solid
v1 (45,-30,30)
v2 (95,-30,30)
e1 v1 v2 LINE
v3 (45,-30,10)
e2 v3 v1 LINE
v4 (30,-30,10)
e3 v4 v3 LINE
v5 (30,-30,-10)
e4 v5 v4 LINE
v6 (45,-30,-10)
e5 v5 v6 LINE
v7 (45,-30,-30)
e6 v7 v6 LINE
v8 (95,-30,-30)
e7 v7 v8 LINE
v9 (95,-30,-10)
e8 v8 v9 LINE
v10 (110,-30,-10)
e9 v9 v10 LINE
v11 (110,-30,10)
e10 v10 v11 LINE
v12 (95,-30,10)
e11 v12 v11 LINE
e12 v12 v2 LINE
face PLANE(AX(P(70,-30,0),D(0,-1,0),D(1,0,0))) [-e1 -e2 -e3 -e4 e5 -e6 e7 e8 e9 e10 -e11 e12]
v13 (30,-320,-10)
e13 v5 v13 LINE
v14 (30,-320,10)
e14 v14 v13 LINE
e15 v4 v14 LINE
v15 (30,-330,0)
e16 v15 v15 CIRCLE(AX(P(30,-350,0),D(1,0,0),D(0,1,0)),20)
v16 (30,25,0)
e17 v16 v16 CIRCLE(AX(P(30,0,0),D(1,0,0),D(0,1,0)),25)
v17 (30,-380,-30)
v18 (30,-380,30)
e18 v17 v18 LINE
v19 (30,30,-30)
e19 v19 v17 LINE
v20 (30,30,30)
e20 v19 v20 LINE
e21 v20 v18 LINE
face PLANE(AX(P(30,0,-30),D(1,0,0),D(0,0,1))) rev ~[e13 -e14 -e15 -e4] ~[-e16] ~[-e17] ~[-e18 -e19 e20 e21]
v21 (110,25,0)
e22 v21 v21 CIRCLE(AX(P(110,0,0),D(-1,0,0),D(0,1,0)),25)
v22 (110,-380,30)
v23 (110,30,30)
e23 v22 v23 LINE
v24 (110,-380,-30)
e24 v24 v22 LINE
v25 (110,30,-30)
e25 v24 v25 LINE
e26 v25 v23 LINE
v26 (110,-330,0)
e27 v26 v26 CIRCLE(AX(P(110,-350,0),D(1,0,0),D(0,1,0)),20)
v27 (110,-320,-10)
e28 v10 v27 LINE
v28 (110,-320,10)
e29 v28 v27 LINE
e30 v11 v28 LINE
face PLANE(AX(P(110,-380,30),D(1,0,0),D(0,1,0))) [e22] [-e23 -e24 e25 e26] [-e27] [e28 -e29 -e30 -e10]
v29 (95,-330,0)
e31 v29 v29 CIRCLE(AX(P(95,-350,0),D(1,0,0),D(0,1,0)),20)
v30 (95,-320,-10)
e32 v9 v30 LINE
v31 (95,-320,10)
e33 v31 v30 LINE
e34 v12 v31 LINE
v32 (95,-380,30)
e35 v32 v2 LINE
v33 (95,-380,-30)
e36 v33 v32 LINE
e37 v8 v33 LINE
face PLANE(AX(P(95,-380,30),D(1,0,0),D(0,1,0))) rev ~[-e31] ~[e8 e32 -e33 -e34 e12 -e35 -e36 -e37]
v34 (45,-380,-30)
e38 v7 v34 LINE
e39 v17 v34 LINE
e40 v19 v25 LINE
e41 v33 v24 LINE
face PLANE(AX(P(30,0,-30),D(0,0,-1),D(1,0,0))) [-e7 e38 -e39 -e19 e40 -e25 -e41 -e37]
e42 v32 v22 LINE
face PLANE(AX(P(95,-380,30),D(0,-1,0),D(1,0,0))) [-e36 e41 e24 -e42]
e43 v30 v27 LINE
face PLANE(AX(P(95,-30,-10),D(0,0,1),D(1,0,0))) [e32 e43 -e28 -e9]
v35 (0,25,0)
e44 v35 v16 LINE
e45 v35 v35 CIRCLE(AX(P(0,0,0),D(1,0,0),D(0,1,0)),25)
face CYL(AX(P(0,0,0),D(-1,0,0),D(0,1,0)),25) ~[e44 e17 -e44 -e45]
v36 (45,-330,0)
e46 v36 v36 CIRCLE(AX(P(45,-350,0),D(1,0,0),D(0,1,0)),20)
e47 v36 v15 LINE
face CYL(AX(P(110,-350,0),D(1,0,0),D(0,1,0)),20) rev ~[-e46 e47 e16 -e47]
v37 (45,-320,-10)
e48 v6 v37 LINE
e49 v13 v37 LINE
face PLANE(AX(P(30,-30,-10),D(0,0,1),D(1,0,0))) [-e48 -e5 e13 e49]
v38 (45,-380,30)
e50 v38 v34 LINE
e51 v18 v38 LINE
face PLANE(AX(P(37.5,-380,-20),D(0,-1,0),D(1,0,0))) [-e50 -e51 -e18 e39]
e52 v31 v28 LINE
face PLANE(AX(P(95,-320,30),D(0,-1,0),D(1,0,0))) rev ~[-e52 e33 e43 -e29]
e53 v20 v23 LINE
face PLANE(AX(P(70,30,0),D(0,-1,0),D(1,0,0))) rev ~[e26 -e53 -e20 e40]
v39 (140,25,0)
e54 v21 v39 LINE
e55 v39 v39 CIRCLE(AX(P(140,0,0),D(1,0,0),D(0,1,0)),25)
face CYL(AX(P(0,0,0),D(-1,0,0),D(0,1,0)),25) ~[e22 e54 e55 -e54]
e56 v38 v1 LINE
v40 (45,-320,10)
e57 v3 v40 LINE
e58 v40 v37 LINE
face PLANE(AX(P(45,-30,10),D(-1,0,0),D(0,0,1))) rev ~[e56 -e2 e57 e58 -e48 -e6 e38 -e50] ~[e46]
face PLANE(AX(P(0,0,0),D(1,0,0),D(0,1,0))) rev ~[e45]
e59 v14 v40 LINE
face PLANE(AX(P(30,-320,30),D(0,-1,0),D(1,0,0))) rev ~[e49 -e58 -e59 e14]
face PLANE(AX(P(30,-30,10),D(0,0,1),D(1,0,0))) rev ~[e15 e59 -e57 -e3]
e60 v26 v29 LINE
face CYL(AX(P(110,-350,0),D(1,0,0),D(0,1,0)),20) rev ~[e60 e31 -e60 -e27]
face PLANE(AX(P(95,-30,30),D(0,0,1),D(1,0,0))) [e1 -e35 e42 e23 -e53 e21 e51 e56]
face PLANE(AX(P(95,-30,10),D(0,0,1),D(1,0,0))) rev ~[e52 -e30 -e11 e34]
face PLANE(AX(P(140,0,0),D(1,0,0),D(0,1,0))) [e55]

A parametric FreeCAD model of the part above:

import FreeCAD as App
import Part
import Sketcher
Q = App.Units.Quantity


def add_polygon(sketch, points):
    """Adds a closed chain of lines whose ends are joined by coincident constraints."""
    first, n = sketch.GeometryCount, len(points)
    for a, b in zip(points, points[1:] + points[:1]):
        sketch.addGeometry(Part.LineSegment(App.Vector(*a, 0), App.Vector(*b, 0)), False)
    for i in range(n):
        sketch.addConstraint(Sketcher.Constraint("Coincident", first + i, 2, first + (i + 1) % n, 1))

doc = App.newDocument("Part")
body = doc.addObject("PartDesign::Body", "Body")

sketch1 = body.newObject("Sketcher::SketchObject", "Sketch")
sketch1.AttachmentSupport = (doc.getObject("YZ_Plane"), [""])
sketch1.MapMode = "FlatFace"
sketch1.addGeometry(Part.Circle(App.Vector(0, 0, 0), App.Vector(0, 0, 1), 25), False)
sketch1.addConstraint(Sketcher.Constraint("Coincident", 0, 3, -1, 1))
sketch1.addConstraint(Sketcher.Constraint("Diameter", 0, Q("50 mm")))
pad1 = body.newObject("PartDesign::Pad", "Pad")
pad1.Profile = sketch1
pad1.Length = 140

sketch2 = body.newObject("Sketcher::SketchObject", "Sketch001")
sketch2.AttachmentSupport = (doc.getObject("XZ_Plane"), [""])
sketch2.MapMode = "FlatFace"
add_polygon(sketch2, [(30, 30), (30, -30), (110, -30), (110, 30)])
sketch2.addConstraint(Sketcher.Constraint("Vertical", 0))
sketch2.addConstraint(Sketcher.Constraint("Horizontal", 1))
sketch2.addConstraint(Sketcher.Constraint("Vertical", 2))
sketch2.addConstraint(Sketcher.Constraint("Horizontal", 3))
sketch2.addConstraint(Sketcher.Constraint("DistanceX", 1, 1, 1, 2, Q("80 mm")))
sketch2.addConstraint(Sketcher.Constraint("DistanceY", 0, 2, 0, 1, Q("60 mm")))
sketch2.addConstraint(Sketcher.Constraint("DistanceX", -1, 1, 0, 2, Q("30 mm")))
sketch2.addConstraint(Sketcher.Constraint("DistanceY", 0, 2, -1, 1, Q("30 mm")))
pad2 = body.newObject("PartDesign::Pad", "Pad001")
pad2.Profile = sketch2
pad2.Type = "TwoLengths"
pad2.Length = 30
pad2.Length2 = 30

sketch3 = body.newObject("Sketcher::SketchObject", "Sketch002")
sketch3.AttachmentSupport = (doc.getObject("XZ_Plane"), [""])
sketch3.MapMode = "FlatFace"
sketch3.AttachmentOffset = App.Placement(App.Vector(0, 0, 30), App.Rotation())
add_polygon(sketch3, [(95, 30), (95, 10), (110, 10), (110, 30)])
add_polygon(sketch3, [(30, 30), (30, 10), (45, 10), (45, 30)])
add_polygon(sketch3, [(30, -10), (30, -30), (45, -30), (45, -10)])
add_polygon(sketch3, [(95, -10), (95, -30), (110, -30), (110, -10)])
sketch3.addConstraint(Sketcher.Constraint("Vertical", 0))
sketch3.addConstraint(Sketcher.Constraint("Horizontal", 1))
sketch3.addConstraint(Sketcher.Constraint("Vertical", 2))
sketch3.addConstraint(Sketcher.Constraint("Horizontal", 3))
sketch3.addConstraint(Sketcher.Constraint("Vertical", 4))
sketch3.addConstraint(Sketcher.Constraint("Horizontal", 5))
sketch3.addConstraint(Sketcher.Constraint("Vertical", 6))
sketch3.addConstraint(Sketcher.Constraint("Horizontal", 7))
sketch3.addConstraint(Sketcher.Constraint("Vertical", 8))
sketch3.addConstraint(Sketcher.Constraint("Horizontal", 9))
sketch3.addConstraint(Sketcher.Constraint("Vertical", 10))
sketch3.addConstraint(Sketcher.Constraint("Horizontal", 11))
sketch3.addConstraint(Sketcher.Constraint("Vertical", 12))
sketch3.addConstraint(Sketcher.Constraint("Horizontal", 13))
sketch3.addConstraint(Sketcher.Constraint("Vertical", 14))
sketch3.addConstraint(Sketcher.Constraint("Horizontal", 15))
sketch3.addConstraint(Sketcher.Constraint("Symmetric", 7, 2, 8, 2, -1))
sketch3.addConstraint(Sketcher.Constraint("Symmetric", 5, 2, 10, 2, -1))
sketch3.addConstraint(Sketcher.Constraint("Symmetric", 3, 2, 12, 2, -1))
sketch3.addConstraint(Sketcher.Constraint("Symmetric", 1, 2, 14, 2, -1))
sketch3.addConstraint(Sketcher.Constraint("Horizontal", 1, 2, 4, 2))
sketch3.addConstraint(Sketcher.Constraint("Horizontal", 3, 2, 6, 2))
sketch3.addConstraint(Sketcher.Constraint("Equal", 3, 5))
sketch3.addConstraint(Sketcher.Constraint("DistanceX", 1, 1, 1, 2, Q("15 mm")))
sketch3.addConstraint(Sketcher.Constraint("DistanceY", 0, 2, 0, 1, Q("20 mm")))
sketch3.addConstraint(Sketcher.Constraint("DistanceX", -1, 1, 0, 2, Q("95 mm")))
sketch3.addConstraint(Sketcher.Constraint("DistanceY", -1, 1, 0, 2, Q("10 mm")))
sketch3.addConstraint(Sketcher.Constraint("DistanceX", -1, 1, 4, 2, Q("30 mm")))
pad3 = body.newObject("PartDesign::Pad", "Pad002")
pad3.Profile = sketch3
pad3.Length = 350

sketch4 = body.newObject("Sketcher::SketchObject", "Sketch003")
sketch4.AttachmentSupport = (doc.getObject("XY_Plane"), [""])
sketch4.MapMode = "FlatFace"
sketch4.AttachmentOffset = App.Placement(App.Vector(0, 0, 30), App.Rotation())
add_polygon(sketch4, [(95, -320), (95, -380), (110, -380), (110, -320)])
add_polygon(sketch4, [(30, -320), (30, -380), (45, -380), (45, -320)])
sketch4.addConstraint(Sketcher.Constraint("Vertical", 0))
sketch4.addConstraint(Sketcher.Constraint("Horizontal", 1))
sketch4.addConstraint(Sketcher.Constraint("Vertical", 2))
sketch4.addConstraint(Sketcher.Constraint("Horizontal", 3))
sketch4.addConstraint(Sketcher.Constraint("Vertical", 4))
sketch4.addConstraint(Sketcher.Constraint("Horizontal", 5))
sketch4.addConstraint(Sketcher.Constraint("Vertical", 6))
sketch4.addConstraint(Sketcher.Constraint("Horizontal", 7))
sketch4.addConstraint(Sketcher.Constraint("Horizontal", 1, 2, 4, 2))
sketch4.addConstraint(Sketcher.Constraint("Horizontal", 3, 2, 6, 2))
sketch4.addConstraint(Sketcher.Constraint("Equal", 3, 5))
sketch4.addConstraint(Sketcher.Constraint("DistanceX", 1, 1, 1, 2, Q("15 mm")))
sketch4.addConstraint(Sketcher.Constraint("DistanceY", 0, 2, 0, 1, Q("60 mm")))
sketch4.addConstraint(Sketcher.Constraint("DistanceX", -1, 1, 0, 2, Q("95 mm")))
sketch4.addConstraint(Sketcher.Constraint("DistanceY", 0, 2, -1, 1, Q("380 mm")))
sketch4.addConstraint(Sketcher.Constraint("DistanceX", -1, 1, 4, 2, Q("30 mm")))
pad4 = body.newObject("PartDesign::Pad", "Pad003")
pad4.Profile = sketch4
pad4.Length = 50
pad4.Reversed = True

sketch5 = body.newObject("Sketcher::SketchObject", "Sketch004")
sketch5.AttachmentSupport = (doc.getObject("YZ_Plane"), [""])
sketch5.MapMode = "FlatFace"
sketch5.AttachmentOffset = App.Placement(App.Vector(0, 0, 110), App.Rotation())
sketch5.addGeometry(Part.Circle(App.Vector(-350, 0, 0), App.Vector(0, 0, 1), 20), False)
sketch5.addConstraint(Sketcher.Constraint("PointOnObject", 0, 3, -1))
sketch5.addConstraint(Sketcher.Constraint("Diameter", 0, Q("40 mm")))
sketch5.addConstraint(Sketcher.Constraint("DistanceX", 0, 3, -1, 1, Q("350 mm")))
pocket1 = body.newObject("PartDesign::Pocket", "Pocket")
pocket1.Profile = sketch5
pocket1.Type = "ThroughAll"

doc.recompute()
